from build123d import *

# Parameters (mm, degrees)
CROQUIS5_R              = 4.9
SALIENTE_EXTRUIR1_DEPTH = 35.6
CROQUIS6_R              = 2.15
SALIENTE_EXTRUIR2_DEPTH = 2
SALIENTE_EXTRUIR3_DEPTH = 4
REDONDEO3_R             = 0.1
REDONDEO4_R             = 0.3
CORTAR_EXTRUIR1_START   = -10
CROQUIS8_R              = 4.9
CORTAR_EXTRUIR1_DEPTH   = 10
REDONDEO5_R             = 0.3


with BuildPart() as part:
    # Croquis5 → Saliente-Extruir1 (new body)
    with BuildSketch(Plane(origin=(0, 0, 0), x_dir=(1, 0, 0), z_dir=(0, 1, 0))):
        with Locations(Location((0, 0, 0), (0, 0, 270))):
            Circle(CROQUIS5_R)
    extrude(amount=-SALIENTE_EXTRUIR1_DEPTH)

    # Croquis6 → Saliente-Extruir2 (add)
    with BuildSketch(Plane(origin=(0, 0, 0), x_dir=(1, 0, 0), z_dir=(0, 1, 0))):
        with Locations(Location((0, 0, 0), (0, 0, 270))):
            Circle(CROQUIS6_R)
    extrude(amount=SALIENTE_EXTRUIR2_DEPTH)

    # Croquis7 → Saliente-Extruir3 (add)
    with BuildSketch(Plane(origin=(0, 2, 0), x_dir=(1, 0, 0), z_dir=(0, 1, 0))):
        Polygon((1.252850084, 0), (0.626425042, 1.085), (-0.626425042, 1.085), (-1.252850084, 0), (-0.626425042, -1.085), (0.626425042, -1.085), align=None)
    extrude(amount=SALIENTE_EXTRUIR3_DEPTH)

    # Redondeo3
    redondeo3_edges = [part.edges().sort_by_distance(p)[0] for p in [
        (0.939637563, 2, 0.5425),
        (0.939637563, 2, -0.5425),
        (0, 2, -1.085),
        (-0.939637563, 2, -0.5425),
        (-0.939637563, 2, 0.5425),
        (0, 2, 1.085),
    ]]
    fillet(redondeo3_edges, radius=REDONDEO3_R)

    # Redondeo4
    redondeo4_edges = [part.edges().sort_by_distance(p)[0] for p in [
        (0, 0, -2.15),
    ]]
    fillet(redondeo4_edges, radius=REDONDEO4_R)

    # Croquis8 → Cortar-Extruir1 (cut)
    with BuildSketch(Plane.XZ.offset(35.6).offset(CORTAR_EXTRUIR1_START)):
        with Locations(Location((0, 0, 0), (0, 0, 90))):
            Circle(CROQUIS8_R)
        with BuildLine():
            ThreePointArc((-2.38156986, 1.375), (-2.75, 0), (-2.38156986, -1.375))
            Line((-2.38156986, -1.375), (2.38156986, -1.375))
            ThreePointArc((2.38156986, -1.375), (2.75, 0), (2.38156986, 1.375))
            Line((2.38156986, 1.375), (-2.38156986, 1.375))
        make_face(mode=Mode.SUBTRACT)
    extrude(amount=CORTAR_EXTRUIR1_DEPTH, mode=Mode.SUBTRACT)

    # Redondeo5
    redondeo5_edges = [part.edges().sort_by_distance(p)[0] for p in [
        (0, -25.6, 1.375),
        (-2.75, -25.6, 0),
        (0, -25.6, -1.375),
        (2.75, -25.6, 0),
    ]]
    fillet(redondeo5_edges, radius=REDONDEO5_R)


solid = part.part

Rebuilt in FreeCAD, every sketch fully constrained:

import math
import FreeCAD as App
import Part
import Sketcher
Q = App.Units.Quantity


def edges_at(feature, points):
    """Names of the edges that pass closest to the given points."""
    edges = feature.Shape.Edges
    near = lambda p: min(range(len(edges)), key=lambda i: edges[i].distToShape(Part.Vertex(*p))[0])
    return sorted({f"Edge{near(p) + 1}" for p in points})


def add_polygon(sketch, points):
    """Adds a closed chain of lines whose ends are joined by coincident constraints."""
    first, n = sketch.GeometryCount, len(points)
    for a, b in zip(points, points[1:] + points[:1]):
        sketch.addGeometry(Part.LineSegment(App.Vector(*a, 0), App.Vector(*b, 0)), False)
    for i in range(n):
        sketch.addConstraint(Sketcher.Constraint("Coincident", first + i, 2, first + (i + 1) % n, 1))

doc = App.newDocument("Part")
body = doc.addObject("PartDesign::Body", "Body")

# Sketch on XZ plane
sketch1 = doc.addObject("Sketcher::SketchObject", "Sketch")
body.addObject(sketch1)
sketch1.AttachmentSupport = (doc.XZ_Plane, [""])
sketch1.MapMode = "FlatFace"
sketch1.addGeometry(Part.Circle(App.Vector(0, 0, 0), App.Vector(0, 0, 1), 4.9), False)
sketch1.addConstraint([
    Sketcher.Constraint("Coincident", 0, 3, -1, 1),
    Sketcher.Constraint("Diameter", 0, 9.8),
])
pad1 = doc.addObject("PartDesign::Pad", "Pad")
body.addObject(pad1)
pad1.Profile = sketch1
pad1.Length = 35.6

# Sketch on XZ plane
sketch2 = doc.addObject("Sketcher::SketchObject", "Sketch001")
body.addObject(sketch2)
sketch2.AttachmentSupport = (doc.XZ_Plane, [""])
sketch2.MapMode = "FlatFace"
sketch2.addGeometry(Part.Circle(App.Vector(0, 0, 0), App.Vector(0, 0, 1), 2.15), False)
sketch2.addConstraint([
    Sketcher.Constraint("Coincident", 0, 3, -1, 1),
    Sketcher.Constraint("Diameter", 0, 4.3),
])
pad2 = doc.addObject("PartDesign::Pad", "Pad001")
body.addObject(pad2)
pad2.Profile = sketch2
pad2.Length = 2
pad2.Reversed = True

# Sketch on XZ plane
sketch3 = doc.addObject("Sketcher::SketchObject", "Sketch002")
body.addObject(sketch3)
sketch3.AttachmentSupport = (doc.XZ_Plane, [""])
sketch3.MapMode = "FlatFace"
sketch3.AttachmentOffset = App.Placement(App.Vector(0, 0, -2), App.Rotation())
add_polygon(sketch3, [(1.25285, 0), (0.626425, -1.085), (-0.626425, -1.085), (-1.25285, 0), (-0.626425, 1.085), (0.626425, 1.085)])  # lines 0-5
sketch3.addConstraint([
    Sketcher.Constraint("Horizontal", 1),
    Sketcher.Constraint("Horizontal", 4),
    Sketcher.Constraint("Symmetric", 0, 2, 3, 2, -1, 1),
    Sketcher.Constraint("Symmetric", 2, 2, 5, 2, -1, 1),
    Sketcher.Constraint("PointOnObject", 2, 2, -1),
    Sketcher.Constraint("Parallel", 2, 5),
    Sketcher.Constraint("Vertical", 1, 2, 3, 2),
    Sketcher.Constraint("Angle", 0, Q("-120 deg")),
    Sketcher.Constraint("DistanceY", 1, 2, 3, 2, 2.17),
    Sketcher.Constraint("DistanceX", 1, 2, 1, 1, 1.25285),
])
pad3 = doc.addObject("PartDesign::Pad", "Pad002")
body.addObject(pad3)
pad3.Profile = sketch3
pad3.Length = 4
pad3.Reversed = True
doc.recompute()

fillet = doc.addObject("PartDesign::Fillet", "Fillet")
body.addObject(fillet)
fillet.Base = (pad3, edges_at(pad3, [
    (0.94, 2, 0.542),
    (0.94, 2, -0.542),
    (0, 2, -1.085),
    (-0.94, 2, -0.542),
    (-0.94, 2, 0.542),
    (0, 2, 1.085),
]))
fillet.Radius = 0.1
doc.recompute()

fillet2 = doc.addObject("PartDesign::Fillet", "Fillet001")
body.addObject(fillet2)
fillet2.Base = (fillet, edges_at(fillet, [(0, 0, -2.15)]))
fillet2.Radius = 0.3

# Sketch on XZ plane
sketch4 = doc.addObject("Sketcher::SketchObject", "Sketch003")
body.addObject(sketch4)
sketch4.AttachmentSupport = (doc.XZ_Plane, [""])
sketch4.MapMode = "FlatFace"
sketch4.AttachmentOffset = App.Placement(App.Vector(0, 0, 25.6), App.Rotation())
sketch4.addGeometry([
    Part.Circle(App.Vector(0, 0, 0), App.Vector(0, 0, 1), 4.9),  # 0
    Part.ArcOfCircle(Part.Circle(App.Vector(0, 0, 0), App.Vector(0, 0, 1), 2.75), math.radians(150), math.radians(210)),  # 1
    Part.LineSegment(App.Vector(-2.38157, 1.375, 0), App.Vector(2.38157, 1.375, 0)),  # 2
    Part.ArcOfCircle(Part.Circle(App.Vector(0, 0, 0), App.Vector(0, 0, 1), 2.75), math.radians(-30), math.radians(30)),  # 3
    Part.LineSegment(App.Vector(2.38157, -1.375, 0), App.Vector(-2.38157, -1.375, 0)),  # 4
], False)
sketch4.addConstraint([
    Sketcher.Constraint("Coincident", 1, 1, 2, 1),
    Sketcher.Constraint("Coincident", 2, 2, 3, 2),
    Sketcher.Constraint("Coincident", 3, 1, 4, 1),
    Sketcher.Constraint("Coincident", 4, 2, 1, 2),
    Sketcher.Constraint("Horizontal", 2),
    Sketcher.Constraint("Horizontal", 4),
    Sketcher.Constraint("Coincident", 0, 3, -1, 1),
    Sketcher.Constraint("Coincident", 1, 3, -1, 1),
    Sketcher.Constraint("Coincident", 3, 3, -1, 1),
    Sketcher.Constraint("Equal", 1, 3),
    Sketcher.Constraint("Vertical", 2, 2, 3, 1),
    Sketcher.Constraint("Diameter", 0, 9.8),
    Sketcher.Constraint("Radius", 1, 2.75),
    Sketcher.Constraint("DistanceY", 3, 1, 2, 2, 2.75),
])
pocket1 = doc.addObject("PartDesign::Pocket", "Pocket")
body.addObject(pocket1)
pocket1.Profile = sketch4
pocket1.Length = 10
pocket1.Reversed = True
doc.recompute()

fillet3 = doc.addObject("PartDesign::Fillet", "Fillet002")
body.addObject(fillet3)
fillet3.Base = (pocket1, edges_at(pocket1, [
    (0, -25.6, 1.375),
    (-2.75, -25.6, 0),
    (0, -25.6, -1.375),
    (2.75, -25.6, 0),
]))
fillet3.Radius = 0.3

doc.recompute()
